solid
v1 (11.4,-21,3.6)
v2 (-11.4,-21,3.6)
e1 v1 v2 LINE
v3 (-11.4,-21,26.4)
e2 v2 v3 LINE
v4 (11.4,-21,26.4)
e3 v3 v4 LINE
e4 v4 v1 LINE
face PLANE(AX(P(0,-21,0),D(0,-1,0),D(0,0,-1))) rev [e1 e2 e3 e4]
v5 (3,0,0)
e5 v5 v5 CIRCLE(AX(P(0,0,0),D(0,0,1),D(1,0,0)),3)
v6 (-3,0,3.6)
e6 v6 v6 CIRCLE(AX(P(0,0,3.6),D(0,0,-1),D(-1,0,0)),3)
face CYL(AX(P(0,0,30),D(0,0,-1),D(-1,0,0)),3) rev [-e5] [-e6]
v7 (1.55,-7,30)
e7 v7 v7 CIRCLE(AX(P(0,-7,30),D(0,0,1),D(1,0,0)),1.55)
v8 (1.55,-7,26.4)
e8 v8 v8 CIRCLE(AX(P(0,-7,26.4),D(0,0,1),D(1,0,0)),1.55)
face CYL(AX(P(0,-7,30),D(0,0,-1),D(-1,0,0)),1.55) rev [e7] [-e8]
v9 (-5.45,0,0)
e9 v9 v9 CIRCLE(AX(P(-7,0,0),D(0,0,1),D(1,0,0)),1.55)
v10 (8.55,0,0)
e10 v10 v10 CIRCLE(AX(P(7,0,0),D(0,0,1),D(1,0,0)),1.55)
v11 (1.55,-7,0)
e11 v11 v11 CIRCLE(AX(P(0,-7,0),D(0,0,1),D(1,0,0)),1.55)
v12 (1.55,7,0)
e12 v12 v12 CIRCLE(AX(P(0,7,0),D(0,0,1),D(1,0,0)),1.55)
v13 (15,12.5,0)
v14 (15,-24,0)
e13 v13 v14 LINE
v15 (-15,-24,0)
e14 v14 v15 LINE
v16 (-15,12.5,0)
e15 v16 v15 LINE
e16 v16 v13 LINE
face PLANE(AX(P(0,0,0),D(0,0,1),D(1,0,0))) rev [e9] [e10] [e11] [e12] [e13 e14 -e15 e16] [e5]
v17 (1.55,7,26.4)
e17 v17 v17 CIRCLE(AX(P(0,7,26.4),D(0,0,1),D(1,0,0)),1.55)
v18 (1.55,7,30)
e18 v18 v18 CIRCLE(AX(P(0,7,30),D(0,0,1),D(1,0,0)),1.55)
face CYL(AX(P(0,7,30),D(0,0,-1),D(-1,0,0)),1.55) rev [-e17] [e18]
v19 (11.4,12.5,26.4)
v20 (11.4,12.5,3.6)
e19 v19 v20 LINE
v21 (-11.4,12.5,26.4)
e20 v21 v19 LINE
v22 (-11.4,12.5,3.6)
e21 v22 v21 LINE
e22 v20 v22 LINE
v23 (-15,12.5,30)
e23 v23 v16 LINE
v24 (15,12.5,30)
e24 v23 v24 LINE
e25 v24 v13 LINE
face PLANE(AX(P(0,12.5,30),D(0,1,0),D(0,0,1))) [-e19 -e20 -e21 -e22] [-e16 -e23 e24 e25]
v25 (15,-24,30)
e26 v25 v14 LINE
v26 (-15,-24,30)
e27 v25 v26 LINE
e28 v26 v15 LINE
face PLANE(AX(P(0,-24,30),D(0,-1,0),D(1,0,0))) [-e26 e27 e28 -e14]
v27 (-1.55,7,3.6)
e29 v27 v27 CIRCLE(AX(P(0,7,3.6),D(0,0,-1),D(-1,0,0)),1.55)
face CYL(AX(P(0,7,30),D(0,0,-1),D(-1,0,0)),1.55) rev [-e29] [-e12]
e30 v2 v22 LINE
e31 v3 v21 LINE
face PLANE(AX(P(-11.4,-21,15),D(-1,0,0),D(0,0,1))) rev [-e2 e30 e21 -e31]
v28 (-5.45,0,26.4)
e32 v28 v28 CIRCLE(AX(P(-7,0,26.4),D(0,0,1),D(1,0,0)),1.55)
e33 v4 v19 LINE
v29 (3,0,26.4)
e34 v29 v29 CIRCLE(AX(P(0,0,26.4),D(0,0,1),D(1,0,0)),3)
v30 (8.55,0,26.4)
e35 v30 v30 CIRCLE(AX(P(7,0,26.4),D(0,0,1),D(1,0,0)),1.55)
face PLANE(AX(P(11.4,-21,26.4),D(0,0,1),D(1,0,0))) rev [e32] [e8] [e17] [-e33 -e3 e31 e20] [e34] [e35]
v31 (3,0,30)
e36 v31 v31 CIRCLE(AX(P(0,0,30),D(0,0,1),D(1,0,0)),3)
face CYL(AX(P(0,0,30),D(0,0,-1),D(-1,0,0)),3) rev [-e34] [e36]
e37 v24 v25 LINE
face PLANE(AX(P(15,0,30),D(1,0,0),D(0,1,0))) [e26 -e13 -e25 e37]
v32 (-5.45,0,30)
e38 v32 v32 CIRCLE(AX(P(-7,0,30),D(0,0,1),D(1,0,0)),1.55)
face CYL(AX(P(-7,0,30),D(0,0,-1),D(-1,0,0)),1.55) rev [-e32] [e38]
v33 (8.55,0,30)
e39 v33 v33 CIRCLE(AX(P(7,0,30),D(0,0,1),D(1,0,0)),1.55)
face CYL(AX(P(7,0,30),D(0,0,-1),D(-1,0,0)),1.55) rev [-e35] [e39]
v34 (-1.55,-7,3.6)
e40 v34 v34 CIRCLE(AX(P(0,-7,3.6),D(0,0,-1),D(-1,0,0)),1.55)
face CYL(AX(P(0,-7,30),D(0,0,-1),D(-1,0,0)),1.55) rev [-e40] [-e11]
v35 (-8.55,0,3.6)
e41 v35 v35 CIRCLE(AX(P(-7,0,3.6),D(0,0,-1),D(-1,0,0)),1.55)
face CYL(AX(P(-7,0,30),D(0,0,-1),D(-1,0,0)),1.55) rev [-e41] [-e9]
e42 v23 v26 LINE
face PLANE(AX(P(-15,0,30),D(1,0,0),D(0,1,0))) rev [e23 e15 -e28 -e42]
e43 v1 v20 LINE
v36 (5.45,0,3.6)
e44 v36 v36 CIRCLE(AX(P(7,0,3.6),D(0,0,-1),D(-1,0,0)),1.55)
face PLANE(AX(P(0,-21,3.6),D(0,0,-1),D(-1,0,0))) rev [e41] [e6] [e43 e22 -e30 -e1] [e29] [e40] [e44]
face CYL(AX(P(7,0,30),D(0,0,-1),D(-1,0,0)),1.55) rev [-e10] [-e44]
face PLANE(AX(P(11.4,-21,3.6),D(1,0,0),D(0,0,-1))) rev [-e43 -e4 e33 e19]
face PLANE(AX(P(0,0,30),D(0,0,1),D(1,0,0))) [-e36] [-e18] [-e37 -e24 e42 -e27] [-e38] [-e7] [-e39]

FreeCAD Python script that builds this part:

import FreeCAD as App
import Part
import Sketcher

V = App.Vector
Q = App.Units.Quantity


def add_polygon(sketch, points):
    """Adds a closed chain of lines whose ends are joined by coincident constraints."""
    first, n = sketch.GeometryCount, len(points)
    for a, b in zip(points, points[1:] + points[:1]):
        sketch.addGeometry(Part.LineSegment(App.Vector(*a, 0), App.Vector(*b, 0)), False)
    for i in range(n):
        sketch.addConstraint(Sketcher.Constraint("Coincident", first + i, 2, first + (i + 1) % n, 1))

doc = App.newDocument("Part")
body = doc.addObject("PartDesign::Body", "Body")

sketch1 = body.newObject("Sketcher::SketchObject", "Sketch")
sketch1.AttachmentSupport = (doc.getObject("XY_Plane"), [""])
sketch1.MapMode = "FlatFace"
add_polygon(sketch1, [(15, 12.5), (-15, 12.5), (-15, -24), (15, -24)])
sketch1.addGeometry(Part.Circle(V(0, -7, 0), V(0, 0, 1), 1.55), False)
sketch1.addGeometry(Part.Circle(V(-7, 0, 0), V(0, 0, 1), 1.55), False)
sketch1.addGeometry(Part.Circle(V(0, 0, 0), V(0, 0, 1), 3), False)
sketch1.addGeometry(Part.Circle(V(7, 0, 0), V(0, 0, 1), 1.55), False)
sketch1.addGeometry(Part.Circle(V(0, 7, 0), V(0, 0, 1), 1.55), False)
sketch1.addConstraint(Sketcher.Constraint("Horizontal", 0))
sketch1.addConstraint(Sketcher.Constraint("Vertical", 1))
sketch1.addConstraint(Sketcher.Constraint("Horizontal", 2))
sketch1.addConstraint(Sketcher.Constraint("Vertical", 3))
sketch1.addConstraint(Sketcher.Constraint("Coincident", 6, 3, -1, 1))
sketch1.addConstraint(Sketcher.Constraint("Equal", 4, 5))
sketch1.addConstraint(Sketcher.Constraint("Equal", 5, 7))
sketch1.addConstraint(Sketcher.Constraint("Equal", 7, 8))
sketch1.addConstraint(Sketcher.Constraint("Symmetric", 5, 3, 7, 3, -1, 1))
sketch1.addConstraint(Sketcher.Constraint("Symmetric", 4, 3, 8, 3, -1, 1))
sketch1.addConstraint(Sketcher.Constraint("PointOnObject", 4, 3, -2))
sketch1.addConstraint(Sketcher.Constraint("PointOnObject", 5, 3, -1))
sketch1.addConstraint(Sketcher.Constraint("Diameter", 6, Q("6 mm")))
sketch1.addConstraint(Sketcher.Constraint("Diameter", 4, Q("3.1 mm")))
sketch1.addConstraint(Sketcher.Constraint("DistanceX", 0, 2, 0, 1, Q("30 mm")))
sketch1.addConstraint(Sketcher.Constraint("DistanceY", 1, 2, 1, 1, Q("36.5 mm")))
sketch1.addConstraint(Sketcher.Constraint("DistanceY", 4, 3, -1, 1, Q("7 mm")))
sketch1.addConstraint(Sketcher.Constraint("DistanceX", 5, 3, -1, 1, Q("7 mm")))
sketch1.addConstraint(Sketcher.Constraint("DistanceX", 0, 2, -1, 1, Q("15 mm")))
sketch1.addConstraint(Sketcher.Constraint("DistanceY", 1, 2, -1, 1, Q("24 mm")))
pad1 = body.newObject("PartDesign::Pad", "Pad")
pad1.Profile = sketch1
pad1.Length = 30

sketch2 = body.newObject("Sketcher::SketchObject", "Sketch001")
sketch2.AttachmentSupport = (doc.getObject("XZ_Plane"), [""])
sketch2.MapMode = "FlatFace"
sketch2.AttachmentOffset = App.Placement(V(0, 0, -12.5), App.Rotation())
add_polygon(sketch2, [(-11.4, 3.6), (-11.4, 26.4), (11.4, 26.4), (11.4, 3.6)])
sketch2.addConstraint(Sketcher.Constraint("Vertical", 0))
sketch2.addConstraint(Sketcher.Constraint("Horizontal", 1))
sketch2.addConstraint(Sketcher.Constraint("Vertical", 2))
sketch2.addConstraint(Sketcher.Constraint("Horizontal", 3))
sketch2.addConstraint(Sketcher.Constraint("Equal", 3, 0))
sketch2.addConstraint(Sketcher.Constraint("DistanceX", 1, 1, 1, 2, Q("22.8 mm")))
sketch2.addConstraint(Sketcher.Constraint("DistanceX", 0, 2, -1, 1, Q("11.4 mm")))
sketch2.addConstraint(Sketcher.Constraint("DistanceY", -1, 1, 0, 2, Q("26.4 mm")))
pocket1 = body.newObject("PartDesign::Pocket", "Pocket")
pocket1.Profile = sketch2
pocket1.Length = 33.5
pocket1.Reversed = True

doc.recompute()
